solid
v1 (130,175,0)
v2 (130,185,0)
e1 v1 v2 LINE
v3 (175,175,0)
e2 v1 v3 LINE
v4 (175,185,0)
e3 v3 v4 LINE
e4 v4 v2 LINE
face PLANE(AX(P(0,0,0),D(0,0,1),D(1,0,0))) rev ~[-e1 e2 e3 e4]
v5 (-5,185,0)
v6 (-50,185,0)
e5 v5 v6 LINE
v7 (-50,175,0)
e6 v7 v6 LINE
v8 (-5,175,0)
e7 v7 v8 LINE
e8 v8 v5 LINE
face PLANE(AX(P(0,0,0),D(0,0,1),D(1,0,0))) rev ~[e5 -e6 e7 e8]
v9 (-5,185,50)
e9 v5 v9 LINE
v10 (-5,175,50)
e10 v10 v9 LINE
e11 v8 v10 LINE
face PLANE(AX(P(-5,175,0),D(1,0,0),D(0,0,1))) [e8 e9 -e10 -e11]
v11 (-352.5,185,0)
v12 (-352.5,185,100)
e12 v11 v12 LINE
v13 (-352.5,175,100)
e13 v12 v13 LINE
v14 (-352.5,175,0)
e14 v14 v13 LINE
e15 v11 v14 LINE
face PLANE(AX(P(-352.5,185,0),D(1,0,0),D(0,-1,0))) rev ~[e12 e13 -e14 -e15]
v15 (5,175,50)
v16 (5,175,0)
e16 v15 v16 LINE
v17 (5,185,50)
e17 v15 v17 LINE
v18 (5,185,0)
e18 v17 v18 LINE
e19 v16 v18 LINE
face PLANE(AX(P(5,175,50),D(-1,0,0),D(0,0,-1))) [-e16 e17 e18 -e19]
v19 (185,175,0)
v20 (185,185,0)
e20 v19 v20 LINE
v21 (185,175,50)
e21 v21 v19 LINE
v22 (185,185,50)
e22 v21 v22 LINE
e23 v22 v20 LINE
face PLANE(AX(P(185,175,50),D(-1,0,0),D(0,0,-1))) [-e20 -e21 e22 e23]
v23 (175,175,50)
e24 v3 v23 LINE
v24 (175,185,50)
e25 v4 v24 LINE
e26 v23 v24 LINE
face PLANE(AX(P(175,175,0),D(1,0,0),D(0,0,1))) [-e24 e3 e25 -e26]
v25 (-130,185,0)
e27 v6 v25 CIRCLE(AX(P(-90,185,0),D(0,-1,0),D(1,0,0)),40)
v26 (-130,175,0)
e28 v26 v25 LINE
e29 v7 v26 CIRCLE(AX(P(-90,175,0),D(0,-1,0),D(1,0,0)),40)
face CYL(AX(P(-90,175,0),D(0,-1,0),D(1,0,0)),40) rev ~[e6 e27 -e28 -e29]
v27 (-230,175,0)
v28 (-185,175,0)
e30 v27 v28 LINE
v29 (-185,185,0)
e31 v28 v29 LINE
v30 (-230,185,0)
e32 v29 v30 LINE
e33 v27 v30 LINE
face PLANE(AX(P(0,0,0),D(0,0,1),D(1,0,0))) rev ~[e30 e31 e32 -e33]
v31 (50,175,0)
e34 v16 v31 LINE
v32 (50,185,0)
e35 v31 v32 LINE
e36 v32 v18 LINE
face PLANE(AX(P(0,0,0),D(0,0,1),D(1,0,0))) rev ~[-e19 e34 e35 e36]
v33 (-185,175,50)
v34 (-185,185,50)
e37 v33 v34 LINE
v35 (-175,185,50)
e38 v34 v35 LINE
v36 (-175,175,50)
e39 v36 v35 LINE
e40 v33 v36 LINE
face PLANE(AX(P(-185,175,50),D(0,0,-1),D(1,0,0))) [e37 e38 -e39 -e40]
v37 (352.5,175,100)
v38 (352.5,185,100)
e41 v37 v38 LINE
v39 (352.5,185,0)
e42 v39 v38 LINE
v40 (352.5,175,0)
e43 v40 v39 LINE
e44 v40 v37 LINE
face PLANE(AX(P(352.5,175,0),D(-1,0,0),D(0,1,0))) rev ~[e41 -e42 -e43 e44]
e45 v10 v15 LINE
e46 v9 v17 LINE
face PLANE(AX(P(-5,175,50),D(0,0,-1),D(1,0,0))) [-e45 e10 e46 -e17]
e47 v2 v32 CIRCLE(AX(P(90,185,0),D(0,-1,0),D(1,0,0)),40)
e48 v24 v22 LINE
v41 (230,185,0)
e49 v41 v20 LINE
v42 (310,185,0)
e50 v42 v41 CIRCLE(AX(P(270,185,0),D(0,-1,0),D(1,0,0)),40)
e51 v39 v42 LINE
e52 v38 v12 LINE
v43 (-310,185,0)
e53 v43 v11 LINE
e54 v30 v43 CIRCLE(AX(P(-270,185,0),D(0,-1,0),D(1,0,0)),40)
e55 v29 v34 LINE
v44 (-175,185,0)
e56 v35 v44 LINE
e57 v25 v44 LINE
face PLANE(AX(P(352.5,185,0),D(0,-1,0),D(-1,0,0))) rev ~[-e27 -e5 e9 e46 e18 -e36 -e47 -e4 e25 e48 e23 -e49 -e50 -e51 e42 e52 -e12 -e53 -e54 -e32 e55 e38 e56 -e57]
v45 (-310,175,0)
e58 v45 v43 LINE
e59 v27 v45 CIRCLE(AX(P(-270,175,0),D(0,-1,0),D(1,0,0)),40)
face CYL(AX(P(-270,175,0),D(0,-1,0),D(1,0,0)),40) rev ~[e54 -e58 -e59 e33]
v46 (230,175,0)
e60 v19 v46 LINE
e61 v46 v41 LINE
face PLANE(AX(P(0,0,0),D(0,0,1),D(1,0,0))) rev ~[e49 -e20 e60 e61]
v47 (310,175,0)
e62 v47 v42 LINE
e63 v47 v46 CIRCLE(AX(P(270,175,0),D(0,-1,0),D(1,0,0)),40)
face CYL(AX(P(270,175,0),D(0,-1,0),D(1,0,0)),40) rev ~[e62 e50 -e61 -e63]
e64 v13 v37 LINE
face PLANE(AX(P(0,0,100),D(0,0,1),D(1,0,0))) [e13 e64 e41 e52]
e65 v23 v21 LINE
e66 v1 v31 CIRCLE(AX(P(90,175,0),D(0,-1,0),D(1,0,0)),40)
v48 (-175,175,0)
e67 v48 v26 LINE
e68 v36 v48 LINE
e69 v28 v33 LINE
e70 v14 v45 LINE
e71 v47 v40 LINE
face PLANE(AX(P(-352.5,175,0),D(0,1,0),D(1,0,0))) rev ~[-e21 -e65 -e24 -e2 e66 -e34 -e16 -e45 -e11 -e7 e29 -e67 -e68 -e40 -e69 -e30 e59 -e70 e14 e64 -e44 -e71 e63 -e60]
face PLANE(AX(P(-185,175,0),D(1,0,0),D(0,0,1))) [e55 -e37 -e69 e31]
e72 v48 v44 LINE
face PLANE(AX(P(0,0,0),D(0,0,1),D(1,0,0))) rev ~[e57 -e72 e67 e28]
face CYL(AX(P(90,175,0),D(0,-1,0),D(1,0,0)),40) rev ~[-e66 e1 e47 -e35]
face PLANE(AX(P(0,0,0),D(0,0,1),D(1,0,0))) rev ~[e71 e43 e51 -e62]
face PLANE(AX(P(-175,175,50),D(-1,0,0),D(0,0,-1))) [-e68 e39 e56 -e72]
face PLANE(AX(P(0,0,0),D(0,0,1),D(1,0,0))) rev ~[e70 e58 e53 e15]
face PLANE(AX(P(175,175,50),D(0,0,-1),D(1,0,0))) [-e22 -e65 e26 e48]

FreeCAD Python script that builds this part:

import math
import FreeCAD as App
import Part
import Sketcher

V = App.Vector
Q = App.Units.Quantity

doc = App.newDocument("Part")
body = doc.addObject("PartDesign::Body", "Body")

sketch1 = body.newObject("Sketcher::SketchObject", "Sketch")
sketch1.AttachmentSupport = (doc.getObject("XY_Plane"), [""])
sketch1.MapMode = "FlatFace"
sketch1.addGeometry([
    Part.LineSegment(V(-352, 185, 0), V(-352, 175, 0)),
    Part.LineSegment(V(-352, 175, 0), V(352, 175, 0)),
    Part.LineSegment(V(352, 175, 0), V(352, 185, 0)),
    Part.LineSegment(V(352, 185, 0), V(-352, 185, 0)),
], False)
sketch1.addConstraint([
    Sketcher.Constraint("Coincident", 0, 2, 1, 1),
    Sketcher.Constraint("Coincident", 1, 2, 2, 1),
    Sketcher.Constraint("Coincident", 2, 2, 3, 1),
    Sketcher.Constraint("Coincident", 3, 2, 0, 1),
    Sketcher.Constraint("Vertical", 0),
    Sketcher.Constraint("Horizontal", 1),
    Sketcher.Constraint("Vertical", 2),
    Sketcher.Constraint("Horizontal", 3),
    Sketcher.Constraint("DistanceX", 1, 1, 1, 2, Q("705 mm")),
    Sketcher.Constraint("DistanceY", 0, 2, 0, 1, Q("10 mm")),
    Sketcher.Constraint("DistanceY", -1, 1, 0, 2, Q("175 mm")),
    Sketcher.Constraint("DistanceX", 0, 2, -1, 1, Q("352.5 mm")),
])
pad1 = body.newObject("PartDesign::Pad", "Pad")
pad1.Profile = sketch1
pad1.Length = 100

sketch2 = body.newObject("Sketcher::SketchObject", "Sketch001")
sketch2.AttachmentSupport = (doc.getObject("XZ_Plane"), [""])
sketch2.MapMode = "FlatFace"
sketch2.AttachmentOffset = App.Placement(V(0, 0, -175), App.Rotation())
sketch2.addGeometry([
    Part.LineSegment(V(-310, 0, 0), V(-230, 0, 0)),
    Part.ArcOfCircle(Part.Circle(V(-270, 0, 0), V(0, 0, 1), 40), math.radians(0), math.radians(180)),
    Part.LineSegment(V(-185, 0, 0), V(-175, 0, 0)),
    Part.LineSegment(V(-175, 0, 0), V(-175, 50, 0)),
    Part.LineSegment(V(-175, 50, 0), V(-185, 50, 0)),
    Part.LineSegment(V(-185, 50, 0), V(-185, 0, 0)),
    Part.LineSegment(V(-130, 0, 0), V(-50, 0, 0)),
    Part.ArcOfCircle(Part.Circle(V(-90, 0, 0), V(0, 0, 1), 40), math.radians(0), math.radians(180)),
    Part.LineSegment(V(-5, 0, 0), V(5, 0, 0)),
    Part.LineSegment(V(5, 0, 0), V(5, 50, 0)),
    Part.LineSegment(V(5, 50, 0), V(-5, 50, 0)),
    Part.LineSegment(V(-5, 50, 0), V(-5, 0, 0)),
    Part.LineSegment(V(50, 0, 0), V(130, 0, 0)),
    Part.ArcOfCircle(Part.Circle(V(90, 0, 0), V(0, 0, 1), 40), math.radians(0), math.radians(180)),
    Part.ArcOfCircle(Part.Circle(V(270, 0, 0), V(0, 0, 1), 40), math.radians(0), math.radians(180)),
    Part.LineSegment(V(230, 0, 0), V(310, 0, 0)),
    Part.LineSegment(V(175, 0, 0), V(185, 0, 0)),
    Part.LineSegment(V(185, 0, 0), V(185, 50, 0)),
    Part.LineSegment(V(185, 50, 0), V(175, 50, 0)),
    Part.LineSegment(V(175, 50, 0), V(175, 0, 0)),
], False)
sketch2.addConstraint([
    Sketcher.Constraint("Coincident", 0, 1, 1, 2),
    Sketcher.Constraint("Coincident", 1, 1, 0, 2),
    Sketcher.Constraint("Coincident", 2, 2, 3, 1),
    Sketcher.Constraint("Coincident", 3, 2, 4, 1),
    Sketcher.Constraint("Coincident", 4, 2, 5, 1),
    Sketcher.Constraint("Coincident", 5, 2, 2, 1),
    Sketcher.Constraint("Coincident", 6, 1, 7, 2),
    Sketcher.Constraint("Coincident", 7, 1, 6, 2),
    Sketcher.Constraint("Coincident", 8, 2, 9, 1),
    Sketcher.Constraint("Coincident", 9, 2, 10, 1),
    Sketcher.Constraint("Coincident", 10, 2, 11, 1),
    Sketcher.Constraint("Coincident", 11, 2, 8, 1),
    Sketcher.Constraint("Coincident", 12, 1, 13, 2),
    Sketcher.Constraint("Coincident", 13, 1, 12, 2),
    Sketcher.Constraint("Coincident", 14, 1, 15, 2),
    Sketcher.Constraint("Coincident", 15, 1, 14, 2),
    Sketcher.Constraint("Coincident", 16, 2, 17, 1),
    Sketcher.Constraint("Coincident", 17, 2, 18, 1),
    Sketcher.Constraint("Coincident", 18, 2, 19, 1),
    Sketcher.Constraint("Coincident", 19, 2, 16, 1),
    Sketcher.Constraint("Horizontal", 0),
    Sketcher.Constraint("Horizontal", 2),
    Sketcher.Constraint("Vertical", 3),
    Sketcher.Constraint("Horizontal", 4),
    Sketcher.Constraint("Vertical", 5),
    Sketcher.Constraint("Horizontal", 6),
    Sketcher.Constraint("Horizontal", 8),
    Sketcher.Constraint("Vertical", 9),
    Sketcher.Constraint("Horizontal", 10),
    Sketcher.Constraint("Vertical", 11),
    Sketcher.Constraint("Horizontal", 12),
    Sketcher.Constraint("Horizontal", 15),
    Sketcher.Constraint("Horizontal", 16),
    Sketcher.Constraint("Vertical", 17),
    Sketcher.Constraint("Horizontal", 18),
    Sketcher.Constraint("Vertical", 19),
    Sketcher.Constraint("Equal", 1, 7),
    Sketcher.Constraint("Equal", 7, 13),
    Sketcher.Constraint("Equal", 13, 14),
    Sketcher.Constraint("Symmetric", 7, 3, 13, 3, -1, 1),
    Sketcher.Constraint("Symmetric", 1, 3, 14, 3, -1, 1),
    Sketcher.Constraint("Symmetric", 8, 2, 11, 2, -1, 1),
    Sketcher.Constraint("Symmetric", 5, 2, 16, 2, -1, 1),
    Sketcher.Constraint("Symmetric", 3, 2, 18, 2, -2),
    Sketcher.Constraint("PointOnObject", 1, 3, -1),
    Sketcher.Constraint("PointOnObject", 7, 3, -1),
    Sketcher.Constraint("PointOnObject", 0, 1, -1),
    Sketcher.Constraint("PointOnObject", 2, 2, -1),
    Sketcher.Constraint("PointOnObject", 6, 1, -1),
    Sketcher.Constraint("PointOnObject", 12, 1, -1),
    Sketcher.Constraint("PointOnObject", 14, 1, -1),
    Sketcher.Constraint("Horizontal", 4, 2, 9, 2),
    Sketcher.Constraint("Equal", 4, 8),
    Sketcher.Constraint("Radius", 1, Q("40 mm")),
    Sketcher.Constraint("DistanceX", 2, 1, 2, 2, Q("10 mm")),
    Sketcher.Constraint("DistanceY", 3, 1, 3, 2, Q("50 mm")),
    Sketcher.Constraint("DistanceX", 7, 3, -1, 1, Q("90 mm")),
    Sketcher.Constraint("DistanceX", 1, 3, 7, 3, Q("180 mm")),
    Sketcher.Constraint("DistanceX", 2, 2, 8, 2, Q("180 mm")),
])
pocket1 = body.newObject("PartDesign::Pocket", "Pocket")
pocket1.Profile = sketch2
pocket1.Type = "ThroughAll"

doc.recompute()
